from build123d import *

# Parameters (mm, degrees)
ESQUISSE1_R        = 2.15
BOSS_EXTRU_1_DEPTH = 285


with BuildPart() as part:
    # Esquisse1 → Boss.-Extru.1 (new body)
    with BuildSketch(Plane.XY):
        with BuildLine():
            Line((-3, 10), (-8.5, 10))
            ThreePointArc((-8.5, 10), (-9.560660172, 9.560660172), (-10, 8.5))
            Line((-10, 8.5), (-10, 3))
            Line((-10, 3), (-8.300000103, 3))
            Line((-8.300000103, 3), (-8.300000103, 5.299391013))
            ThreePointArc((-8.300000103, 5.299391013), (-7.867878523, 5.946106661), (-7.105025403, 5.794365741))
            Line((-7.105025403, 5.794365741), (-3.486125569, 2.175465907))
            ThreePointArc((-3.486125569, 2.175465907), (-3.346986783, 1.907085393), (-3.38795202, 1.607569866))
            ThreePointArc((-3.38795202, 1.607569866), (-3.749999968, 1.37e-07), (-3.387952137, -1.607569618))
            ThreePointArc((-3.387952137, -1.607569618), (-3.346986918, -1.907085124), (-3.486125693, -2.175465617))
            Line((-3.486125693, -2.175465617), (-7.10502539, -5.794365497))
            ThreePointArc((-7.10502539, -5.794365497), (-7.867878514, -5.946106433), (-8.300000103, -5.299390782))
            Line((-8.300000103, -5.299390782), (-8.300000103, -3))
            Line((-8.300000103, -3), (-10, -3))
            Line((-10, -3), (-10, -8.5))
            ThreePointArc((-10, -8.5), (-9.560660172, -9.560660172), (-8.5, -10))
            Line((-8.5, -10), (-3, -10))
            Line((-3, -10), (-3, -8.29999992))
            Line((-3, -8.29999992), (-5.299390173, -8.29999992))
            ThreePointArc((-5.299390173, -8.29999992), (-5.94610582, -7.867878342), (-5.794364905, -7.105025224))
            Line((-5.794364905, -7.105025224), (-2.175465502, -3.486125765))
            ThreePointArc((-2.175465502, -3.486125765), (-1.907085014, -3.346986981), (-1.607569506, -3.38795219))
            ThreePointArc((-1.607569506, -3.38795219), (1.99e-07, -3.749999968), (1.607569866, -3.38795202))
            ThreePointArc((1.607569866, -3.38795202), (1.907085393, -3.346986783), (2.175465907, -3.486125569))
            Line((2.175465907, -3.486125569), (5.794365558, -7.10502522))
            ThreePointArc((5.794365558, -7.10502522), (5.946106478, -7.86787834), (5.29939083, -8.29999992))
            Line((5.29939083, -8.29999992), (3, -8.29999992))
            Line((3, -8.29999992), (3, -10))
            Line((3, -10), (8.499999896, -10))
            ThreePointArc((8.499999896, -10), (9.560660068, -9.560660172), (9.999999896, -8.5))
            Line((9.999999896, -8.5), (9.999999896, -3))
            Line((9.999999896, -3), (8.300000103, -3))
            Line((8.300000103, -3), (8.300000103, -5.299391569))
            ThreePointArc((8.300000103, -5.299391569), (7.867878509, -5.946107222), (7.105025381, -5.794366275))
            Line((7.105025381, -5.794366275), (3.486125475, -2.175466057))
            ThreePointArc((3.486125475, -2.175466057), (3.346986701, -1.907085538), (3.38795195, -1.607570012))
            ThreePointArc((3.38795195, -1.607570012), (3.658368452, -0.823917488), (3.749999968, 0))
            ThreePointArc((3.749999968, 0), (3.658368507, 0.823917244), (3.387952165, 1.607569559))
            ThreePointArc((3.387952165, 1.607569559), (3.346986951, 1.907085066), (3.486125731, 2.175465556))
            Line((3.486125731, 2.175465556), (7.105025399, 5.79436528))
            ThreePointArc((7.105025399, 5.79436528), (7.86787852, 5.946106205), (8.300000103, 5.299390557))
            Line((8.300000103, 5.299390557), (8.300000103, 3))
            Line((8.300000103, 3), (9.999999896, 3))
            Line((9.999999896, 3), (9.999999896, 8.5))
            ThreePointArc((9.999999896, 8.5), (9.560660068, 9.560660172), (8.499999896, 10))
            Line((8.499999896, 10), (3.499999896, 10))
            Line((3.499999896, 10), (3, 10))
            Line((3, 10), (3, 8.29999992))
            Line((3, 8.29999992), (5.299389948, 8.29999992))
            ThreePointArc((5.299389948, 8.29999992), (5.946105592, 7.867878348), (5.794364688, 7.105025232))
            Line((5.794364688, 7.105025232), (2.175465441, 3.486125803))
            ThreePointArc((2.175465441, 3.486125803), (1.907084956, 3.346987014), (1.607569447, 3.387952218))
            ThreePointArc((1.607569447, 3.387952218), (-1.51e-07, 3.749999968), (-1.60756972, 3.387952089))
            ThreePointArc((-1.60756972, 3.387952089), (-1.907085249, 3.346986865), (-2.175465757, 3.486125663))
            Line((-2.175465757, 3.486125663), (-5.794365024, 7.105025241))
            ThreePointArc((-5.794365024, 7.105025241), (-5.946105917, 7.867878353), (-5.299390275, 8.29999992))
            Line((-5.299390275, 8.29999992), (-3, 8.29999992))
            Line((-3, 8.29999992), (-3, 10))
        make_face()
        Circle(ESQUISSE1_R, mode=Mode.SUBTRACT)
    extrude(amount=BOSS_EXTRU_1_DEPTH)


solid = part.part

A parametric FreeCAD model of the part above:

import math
import FreeCAD as App
import Part
import Sketcher
from FreeCAD import Vector

doc = App.newDocument("Part")
body = doc.addObject("PartDesign::Body", "Body")

sketch1 = body.newObject("Sketcher::SketchObject", "Sketch")
sketch1.AttachmentSupport = (doc.getObject("XY_Plane"), [""])
sketch1.MapMode = "FlatFace"
sketch1.addGeometry([
    Part.LineSegment(Vector(-3, 10, 0), Vector(-8.5, 10, 0)),
    Part.ArcOfCircle(Part.Circle(Vector(-8.5, 8.5, 0), Vector(0, 0, 1), 1.5), math.radians(90), math.radians(180)),
    Part.LineSegment(Vector(-10, 8.5, 0), Vector(-10, 3, 0)),
    Part.LineSegment(Vector(-10, 3, 0), Vector(-8.3, 3, 0)),
    Part.LineSegment(Vector(-8.3, 3, 0), Vector(-8.3, 5.3, 0)),
    Part.ArcOfCircle(Part.Circle(Vector(-7.6, 5.3, 0), Vector(0, 0, 1), 0.7), math.radians(45), math.radians(180)),
    Part.LineSegment(Vector(-7.11, 5.79, 0), Vector(-3.49, 2.18, 0)),
    Part.ArcOfCircle(Part.Circle(Vector(-3.84, 1.82, 0), Vector(0, 0, 1), 0.5), math.radians(-25), math.radians(45)),
    Part.ArcOfCircle(Part.Circle(Vector(0, 0, 0), Vector(0, 0, 1), 3.75), math.radians(155), math.radians(205)),
    Part.ArcOfCircle(Part.Circle(Vector(-3.84, -1.82, 0), Vector(0, 0, 1), 0.5), math.radians(-45), math.radians(25)),
    Part.LineSegment(Vector(-3.49, -2.18, 0), Vector(-7.11, -5.79, 0)),
    Part.ArcOfCircle(Part.Circle(Vector(-7.6, -5.3, 0), Vector(0, 0, 1), 0.7), math.radians(180), math.radians(315)),
    Part.LineSegment(Vector(-8.3, -5.3, 0), Vector(-8.3, -3, 0)),
    Part.LineSegment(Vector(-8.3, -3, 0), Vector(-10, -3, 0)),
    Part.LineSegment(Vector(-10, -3, 0), Vector(-10, -8.5, 0)),
    Part.ArcOfCircle(Part.Circle(Vector(-8.5, -8.5, 0), Vector(0, 0, 1), 1.5), math.radians(180), math.radians(270)),
    Part.LineSegment(Vector(-8.5, -10, 0), Vector(-3, -10, 0)),
    Part.LineSegment(Vector(-3, -10, 0), Vector(-3, -8.3, 0)),
    Part.LineSegment(Vector(-3, -8.3, 0), Vector(-5.3, -8.3, 0)),
    Part.ArcOfCircle(Part.Circle(Vector(-5.3, -7.6, 0), Vector(0, 0, 1), 0.7), math.radians(135), math.radians(270)),
    Part.LineSegment(Vector(-5.79, -7.11, 0), Vector(-2.18, -3.49, 0)),
    Part.ArcOfCircle(Part.Circle(Vector(-1.82, -3.84, 0), Vector(0, 0, 1), 0.5), math.radians(65), math.radians(135)),
    Part.ArcOfCircle(Part.Circle(Vector(0, 0, 0), Vector(0, 0, 1), 3.75), math.radians(-115), math.radians(-65)),
    Part.ArcOfCircle(Part.Circle(Vector(1.82, -3.84, 0), Vector(0, 0, 1), 0.5), math.radians(45), math.radians(115)),
    Part.LineSegment(Vector(2.18, -3.49, 0), Vector(5.79, -7.11, 0)),
    Part.ArcOfCircle(Part.Circle(Vector(5.3, -7.6, 0), Vector(0, 0, 1), 0.7), math.radians(-90), math.radians(45)),
    Part.LineSegment(Vector(5.3, -8.3, 0), Vector(3, -8.3, 0)),
    Part.LineSegment(Vector(3, -8.3, 0), Vector(3, -10, 0)),
    Part.LineSegment(Vector(3, -10, 0), Vector(8.5, -10, 0)),
    Part.ArcOfCircle(Part.Circle(Vector(8.5, -8.5, 0), Vector(0, 0, 1), 1.5), math.radians(-90), math.radians(0)),
    Part.LineSegment(Vector(10, -8.5, 0), Vector(10, -3, 0)),
    Part.LineSegment(Vector(10, -3, 0), Vector(8.3, -3, 0)),
    Part.LineSegment(Vector(8.3, -3, 0), Vector(8.3, -5.3, 0)),
    Part.ArcOfCircle(Part.Circle(Vector(7.6, -5.3, 0), Vector(0, 0, 1), 0.7), math.radians(-135), math.radians(0)),
    Part.LineSegment(Vector(7.11, -5.79, 0), Vector(3.49, -2.18, 0)),
    Part.ArcOfCircle(Part.Circle(Vector(3.84, -1.82, 0), Vector(0, 0, 1), 0.5), math.radians(155), math.radians(225)),
    Part.ArcOfCircle(Part.Circle(Vector(0, 0, 0), Vector(0, 0, 1), 3.75), math.radians(-25), math.radians(0)),
    Part.ArcOfCircle(Part.Circle(Vector(0, 0, 0), Vector(0, 0, 1), 3.75), math.radians(0), math.radians(25)),
    Part.ArcOfCircle(Part.Circle(Vector(3.84, 1.82, 0), Vector(0, 0, 1), 0.5), math.radians(135), math.radians(205)),
    Part.LineSegment(Vector(3.49, 2.18, 0), Vector(7.11, 5.79, 0)),
    Part.ArcOfCircle(Part.Circle(Vector(7.6, 5.3, 0), Vector(0, 0, 1), 0.7), math.radians(0), math.radians(135)),
    Part.LineSegment(Vector(8.3, 5.3, 0), Vector(8.3, 3, 0)),
    Part.LineSegment(Vector(8.3, 3, 0), Vector(10, 3, 0)),
    Part.LineSegment(Vector(10, 3, 0), Vector(10, 8.5, 0)),
    Part.ArcOfCircle(Part.Circle(Vector(8.5, 8.5, 0), Vector(0, 0, 1), 1.5), math.radians(0), math.radians(90)),
    Part.LineSegment(Vector(8.5, 10, 0), Vector(3, 10, 0)),
    Part.LineSegment(Vector(3, 10, 0), Vector(3, 8.3, 0)),
    Part.LineSegment(Vector(3, 8.3, 0), Vector(5.3, 8.3, 0)),
    Part.ArcOfCircle(Part.Circle(Vector(5.3, 7.6, 0), Vector(0, 0, 1), 0.7), math.radians(-45), math.radians(90)),
    Part.LineSegment(Vector(5.79, 7.11, 0), Vector(2.18, 3.49, 0)),
    Part.ArcOfCircle(Part.Circle(Vector(1.82, 3.84, 0), Vector(0, 0, 1), 0.5), math.radians(-115), math.radians(-45)),
    Part.ArcOfCircle(Part.Circle(Vector(0, 0, 0), Vector(0, 0, 1), 3.75), math.radians(65), math.radians(115)),
    Part.ArcOfCircle(Part.Circle(Vector(-1.82, 3.84, 0), Vector(0, 0, 1), 0.5), math.radians(-135), math.radians(-65)),
    Part.LineSegment(Vector(-2.18, 3.49, 0), Vector(-5.79, 7.11, 0)),
    Part.ArcOfCircle(Part.Circle(Vector(-5.3, 7.6, 0), Vector(0, 0, 1), 0.7), math.radians(90), math.radians(225)),
    Part.LineSegment(Vector(-5.3, 8.3, 0), Vector(-3, 8.3, 0)),
    Part.LineSegment(Vector(-3, 8.3, 0), Vector(-3, 10, 0)),
    Part.Circle(Vector(0, 0, 0), Vector(0, 0, 1), 2.15),
], False)
sketch1.addConstraint([
    Sketcher.Constraint("Tangent", 0, 2, 1, 1),
    Sketcher.Constraint("Tangent", 1, 2, 2, 1),
    Sketcher.Constraint("Coincident", 2, 2, 3, 1),
    Sketcher.Constraint("Coincident", 3, 2, 4, 1),
    Sketcher.Constraint("Tangent", 4, 2, 5, 2),
    Sketcher.Constraint("Tangent", 5, 1, 6, 1),
    Sketcher.Constraint("Tangent", 6, 2, 7, 2),
    Sketcher.Constraint("Tangent", 7, 1, 8, 1),
    Sketcher.Constraint("Tangent", 8, 2, 9, 2),
    Sketcher.Constraint("Tangent", 9, 1, 10, 1),
    Sketcher.Constraint("Tangent", 10, 2, 11, 2),
    Sketcher.Constraint("Tangent", 11, 1, 12, 1),
    Sketcher.Constraint("Coincident", 12, 2, 13, 1),
    Sketcher.Constraint("Coincident", 13, 2, 14, 1),
    Sketcher.Constraint("Tangent", 14, 2, 15, 1),
    Sketcher.Constraint("Tangent", 15, 2, 16, 1),
    Sketcher.Constraint("Coincident", 16, 2, 17, 1),
    Sketcher.Constraint("Coincident", 17, 2, 18, 1),
    Sketcher.Constraint("Tangent", 18, 2, 19, 2),
    Sketcher.Constraint("Tangent", 19, 1, 20, 1),
    Sketcher.Constraint("Tangent", 20, 2, 21, 2),
    Sketcher.Constraint("Tangent", 21, 1, 22, 1),
    Sketcher.Constraint("Tangent", 22, 2, 23, 2),
    Sketcher.Constraint("Tangent", 23, 1, 24, 1),
    Sketcher.Constraint("Tangent", 24, 2, 25, 2),
    Sketcher.Constraint("Tangent", 25, 1, 26, 1),
    Sketcher.Constraint("Coincident", 26, 2, 27, 1),
    Sketcher.Constraint("Coincident", 27, 2, 28, 1),
    Sketcher.Constraint("Tangent", 28, 2, 29, 1),
    Sketcher.Constraint("Tangent", 29, 2, 30, 1),
    Sketcher.Constraint("Coincident", 30, 2, 31, 1),
    Sketcher.Constraint("Coincident", 31, 2, 32, 1),
    Sketcher.Constraint("Tangent", 32, 2, 33, 2),
    Sketcher.Constraint("Tangent", 33, 1, 34, 1),
    Sketcher.Constraint("Tangent", 34, 2, 35, 2),
    Sketcher.Constraint("Tangent", 35, 1, 36, 1),
    Sketcher.Constraint("Tangent", 36, 2, 37, 1),
    Sketcher.Constraint("Tangent", 37, 2, 38, 2),
    Sketcher.Constraint("Tangent", 38, 1, 39, 1),
    Sketcher.Constraint("Tangent", 39, 2, 40, 2),
    Sketcher.Constraint("Tangent", 40, 1, 41, 1),
    Sketcher.Constraint("Coincident", 41, 2, 42, 1),
    Sketcher.Constraint("Coincident", 42, 2, 43, 1),
    Sketcher.Constraint("Tangent", 43, 2, 44, 1),
    Sketcher.Constraint("Tangent", 44, 2, 45, 1),
    Sketcher.Constraint("Coincident", 45, 2, 46, 1),
    Sketcher.Constraint("Coincident", 46, 2, 47, 1),
    Sketcher.Constraint("Tangent", 47, 2, 48, 2),
    Sketcher.Constraint("Tangent", 48, 1, 49, 1),
    Sketcher.Constraint("Tangent", 49, 2, 50, 2),
    Sketcher.Constraint("Tangent", 50, 1, 51, 1),
    Sketcher.Constraint("Tangent", 51, 2, 52, 2),
    Sketcher.Constraint("Tangent", 52, 1, 53, 1),
    Sketcher.Constraint("Tangent", 53, 2, 54, 2),
    Sketcher.Constraint("Tangent", 54, 1, 55, 1),
    Sketcher.Constraint("Coincident", 55, 2, 56, 1),
    Sketcher.Constraint("Coincident", 56, 2, 0, 1),
    Sketcher.Constraint("Horizontal", 0),
    Sketcher.Constraint("Vertical", 2),
    Sketcher.Constraint("Horizontal", 3),
    Sketcher.Constraint("Vertical", 4),
    Sketcher.Constraint("Vertical", 12),
    Sketcher.Constraint("Horizontal", 13),
    Sketcher.Constraint("Vertical", 14),
    Sketcher.Constraint("Horizontal", 16),
    Sketcher.Constraint("Vertical", 17),
    Sketcher.Constraint("Horizontal", 18),
    Sketcher.Constraint("Horizontal", 26),
    Sketcher.Constraint("Vertical", 27),
    Sketcher.Constraint("Horizontal", 28),
    Sketcher.Constraint("Vertical", 30),
    Sketcher.Constraint("Horizontal", 31),
    Sketcher.Constraint("Vertical", 32),
    Sketcher.Constraint("Vertical", 41),
    Sketcher.Constraint("Horizontal", 42),
    Sketcher.Constraint("Vertical", 43),
    Sketcher.Constraint("Horizontal", 45),
    Sketcher.Constraint("Vertical", 46),
    Sketcher.Constraint("Horizontal", 47),
    Sketcher.Constraint("Horizontal", 55),
    Sketcher.Constraint("Vertical", 56),
    Sketcher.Constraint("Coincident", 8, 3, -1, 1),
    Sketcher.Constraint("Coincident", 22, 3, -1, 1),
    Sketcher.Constraint("Coincident", 36, 3, -1, 1),
    Sketcher.Constraint("Coincident", 51, 3, -1, 1),
    Sketcher.Constraint("Coincident", 57, 3, -1, 1),
    Sketcher.Constraint("Equal", 7, 9),
    Sketcher.Constraint("Equal", 5, 11),
    Sketcher.Constraint("Equal", 1, 15),
    Sketcher.Constraint("Equal", 11, 19),
    Sketcher.Constraint("Equal", 9, 21),
    Sketcher.Constraint("Equal", 8, 22),
    Sketcher.Constraint("Equal", 21, 23),
    Sketcher.Constraint("Equal", 19, 25),
    Sketcher.Constraint("Equal", 15, 29),
    Sketcher.Constraint("Equal", 25, 33),
    Sketcher.Constraint("Equal", 23, 35),
    Sketcher.Constraint("Equal", 22, 36),
    Sketcher.Constraint("Equal", 36, 37),
    Sketcher.Constraint("Equal", 35, 38),
    Sketcher.Constraint("Equal", 33, 40),
    Sketcher.Constraint("Equal", 29, 44),
    Sketcher.Constraint("Equal", 40, 48),
    Sketcher.Constraint("Equal", 38, 50),
    Sketcher.Constraint("Equal", 37, 51),
    Sketcher.Constraint("Equal", 50, 52),
    Sketcher.Constraint("Equal", 48, 54),
    Sketcher.Constraint("Symmetric", 1, 3, 29, 3, -1, 1),
    Sketcher.Constraint("Symmetric", 5, 3, 33, 3, -1, 1),
    Sketcher.Constraint("Symmetric", 11, 3, 40, 3, -1, 1),
    Sketcher.Constraint("Symmetric", 15, 3, 44, 3, -1, 1),
    Sketcher.Constraint("Symmetric", 19, 3, 48, 3, -1, 1),
    Sketcher.Constraint("Symmetric", 25, 3, 54, 3, -1, 1),
    Sketcher.Constraint("Symmetric", 19, 3, 25, 3, -2),
    Sketcher.Constraint("Symmetric", 15, 3, 29, 3, -2),
    Sketcher.Constraint("Symmetric", 11, 3, 33, 3, -2),
    Sketcher.Constraint("PointOnObject", 36, 2, -1),
    Sketcher.Constraint("Perpendicular", 6, 10),
    Sketcher.Constraint("Parallel", 10, 20),
    Sketcher.Constraint("Perpendicular", 20, 24),
    Sketcher.Constraint("Parallel", 24, 34),
    Sketcher.Constraint("Perpendicular", 34, 39),
    Sketcher.Constraint("Parallel", 39, 49),
    Sketcher.Constraint("Perpendicular", 49, 53),
    Sketcher.Constraint("Horizontal", 21, 3, 23, 3),
    Sketcher.Constraint("Horizontal", 13, 2, 30, 2),
    Sketcher.Constraint("Horizontal", 3, 2, 41, 2),
    Sketcher.Constraint("Vertical", 27, 2, 45, 2),
    Sketcher.Constraint("Vertical", 17, 2, 55, 2),
    Sketcher.Constraint("Equal", 18, 26),
    Sketcher.Constraint("Equal", 45, 2),
    Sketcher.Constraint("Equal", 55, 4),
    Sketcher.Constraint("Equal", 4, 12),
    Sketcher.Constraint("Equal", 42, 17),
    Sketcher.Constraint("Equal", 10, 20),
    Sketcher.Constraint("Diameter", 57, 4.3),
    Sketcher.Constraint("Radius", 1, 1.5),
    Sketcher.Constraint("Radius", 5, 0.7),
    Sketcher.Constraint("Radius", 7, 0.5),
    Sketcher.Constraint("Radius", 8, 3.75),
    Sketcher.Constraint("DistanceX", 0, 2, 0, 1, 5.5),
    Sketcher.Constraint("DistanceX", 3, 1, 3, 2, 1.7),
    Sketcher.Constraint("DistanceY", -1, 1, 0, 2, 10.0),
    Sketcher.Constraint("DistanceX", 18, 2, 18, 1, 2.29939),
])
pad1 = body.newObject("PartDesign::Pad", "Pad")
pad1.Profile = sketch1
pad1.Length = 285

doc.recompute()
